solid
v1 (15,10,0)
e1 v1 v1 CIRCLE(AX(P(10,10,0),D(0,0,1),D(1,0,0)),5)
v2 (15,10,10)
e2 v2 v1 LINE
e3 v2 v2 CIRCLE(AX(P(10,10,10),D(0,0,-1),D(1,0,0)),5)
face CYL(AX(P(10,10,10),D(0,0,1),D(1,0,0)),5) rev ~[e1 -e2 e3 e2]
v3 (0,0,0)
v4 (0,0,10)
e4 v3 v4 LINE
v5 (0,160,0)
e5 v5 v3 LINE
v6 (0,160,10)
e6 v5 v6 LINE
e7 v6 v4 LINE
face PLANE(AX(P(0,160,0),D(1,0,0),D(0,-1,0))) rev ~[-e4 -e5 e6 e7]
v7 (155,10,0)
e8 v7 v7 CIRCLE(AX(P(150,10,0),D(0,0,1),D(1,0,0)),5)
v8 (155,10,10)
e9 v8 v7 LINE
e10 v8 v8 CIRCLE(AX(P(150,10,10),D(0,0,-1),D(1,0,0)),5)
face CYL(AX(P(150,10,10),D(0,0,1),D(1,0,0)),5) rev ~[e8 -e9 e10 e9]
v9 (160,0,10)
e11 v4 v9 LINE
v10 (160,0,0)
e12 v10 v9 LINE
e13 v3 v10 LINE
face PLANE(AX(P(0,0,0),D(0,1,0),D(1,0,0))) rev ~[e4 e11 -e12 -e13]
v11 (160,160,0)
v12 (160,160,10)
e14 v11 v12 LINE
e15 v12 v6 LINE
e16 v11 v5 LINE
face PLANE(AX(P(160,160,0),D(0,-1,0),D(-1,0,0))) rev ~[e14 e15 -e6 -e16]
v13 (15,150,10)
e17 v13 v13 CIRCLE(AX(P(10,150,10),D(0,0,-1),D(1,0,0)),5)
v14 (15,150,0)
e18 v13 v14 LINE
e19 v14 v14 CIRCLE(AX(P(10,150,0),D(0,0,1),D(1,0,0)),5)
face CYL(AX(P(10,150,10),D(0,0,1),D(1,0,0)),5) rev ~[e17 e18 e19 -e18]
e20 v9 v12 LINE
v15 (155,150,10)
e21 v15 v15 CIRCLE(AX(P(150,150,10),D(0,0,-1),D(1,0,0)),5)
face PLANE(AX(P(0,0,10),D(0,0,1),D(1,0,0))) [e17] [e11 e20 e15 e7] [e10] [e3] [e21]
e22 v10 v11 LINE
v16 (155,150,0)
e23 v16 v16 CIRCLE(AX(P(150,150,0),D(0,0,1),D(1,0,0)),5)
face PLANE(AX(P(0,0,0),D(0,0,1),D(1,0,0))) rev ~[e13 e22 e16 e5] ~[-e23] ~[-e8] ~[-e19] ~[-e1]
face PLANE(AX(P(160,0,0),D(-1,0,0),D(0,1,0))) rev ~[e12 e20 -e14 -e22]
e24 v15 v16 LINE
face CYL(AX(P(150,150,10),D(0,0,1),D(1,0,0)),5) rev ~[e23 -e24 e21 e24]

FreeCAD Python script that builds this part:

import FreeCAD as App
import Part
import Sketcher

V = App.Vector

doc = App.newDocument("Part")
body = doc.addObject("PartDesign::Body", "Body")

# Sketch on XY plane
sketch1 = doc.addObject("Sketcher::SketchObject", "Sketch")
body.addObject(sketch1)
sketch1.AttachmentSupport = (doc.XY_Plane, [""])
sketch1.MapMode = "FlatFace"
sketch1.addGeometry([
    Part.LineSegment(V(0, 160, 0), V(0, 0, 0)),
    Part.LineSegment(V(0, 0, 0), V(160, 0, 0)),
    Part.LineSegment(V(160, 0, 0), V(160, 160, 0)),
    Part.LineSegment(V(160, 160, 0), V(0, 160, 0)),
], False)
sketch1.addConstraint([
    Sketcher.Constraint("Coincident", 0, 2, 1, 1),
    Sketcher.Constraint("Coincident", 1, 2, 2, 1),
    Sketcher.Constraint("Coincident", 2, 2, 3, 1),
    Sketcher.Constraint("Coincident", 3, 2, 0, 1),
    Sketcher.Constraint("Vertical", 0),
    Sketcher.Constraint("Horizontal", 1),
    Sketcher.Constraint("Vertical", 2),
    Sketcher.Constraint("Horizontal", 3),
    Sketcher.Constraint("Coincident", 0, 2, -1, 1),
    Sketcher.Constraint("Equal", 3, 0),
    Sketcher.Constraint("DistanceX", 1, 1, 1, 2, 160.0),
])
pad1 = doc.addObject("PartDesign::Pad", "Pad")
body.addObject(pad1)
pad1.Profile = sketch1
pad1.Length = 10

# Sketch on XY plane
sketch2 = doc.addObject("Sketcher::SketchObject", "Sketch001")
body.addObject(sketch2)
sketch2.AttachmentSupport = (doc.XY_Plane, [""])
sketch2.MapMode = "FlatFace"
sketch2.AttachmentOffset = App.Placement(V(0, 0, 10), App.Rotation())
sketch2.addGeometry([
    Part.Circle(V(10, 10, 0), V(0, 0, 1), 5),
    Part.Circle(V(10, 150, 0), V(0, 0, 1), 5),
    Part.Circle(V(150, 10, 0), V(0, 0, 1), 5),
    Part.Circle(V(150, 150, 0), V(0, 0, 1), 5),
], False)
sketch2.addConstraint([
    Sketcher.Constraint("Equal", 0, 1),
    Sketcher.Constraint("Equal", 1, 2),
    Sketcher.Constraint("Equal", 2, 3),
    Sketcher.Constraint("Horizontal", 0, 3, 2, 3),
    Sketcher.Constraint("Horizontal", 1, 3, 3, 3),
    Sketcher.Constraint("Vertical", 0, 3, 1, 3),
    Sketcher.Constraint("Vertical", 2, 3, 3, 3),
    Sketcher.Constraint("Diameter", 0, 10.0),
    Sketcher.Constraint("DistanceX", -1, 1, 0, 3, 10.0),
    Sketcher.Constraint("DistanceY", -1, 1, 0, 3, 10.0),
    Sketcher.Constraint("DistanceY", 0, 3, 1, 3, 140.0),
    Sketcher.Constraint("DistanceX", 0, 3, 2, 3, 140.0),
])
pocket1 = doc.addObject("PartDesign::Pocket", "Pocket")
body.addObject(pocket1)
pocket1.Profile = sketch2
pocket1.Type = "ThroughAll"
pocket1.Midplane = True

doc.recompute()
